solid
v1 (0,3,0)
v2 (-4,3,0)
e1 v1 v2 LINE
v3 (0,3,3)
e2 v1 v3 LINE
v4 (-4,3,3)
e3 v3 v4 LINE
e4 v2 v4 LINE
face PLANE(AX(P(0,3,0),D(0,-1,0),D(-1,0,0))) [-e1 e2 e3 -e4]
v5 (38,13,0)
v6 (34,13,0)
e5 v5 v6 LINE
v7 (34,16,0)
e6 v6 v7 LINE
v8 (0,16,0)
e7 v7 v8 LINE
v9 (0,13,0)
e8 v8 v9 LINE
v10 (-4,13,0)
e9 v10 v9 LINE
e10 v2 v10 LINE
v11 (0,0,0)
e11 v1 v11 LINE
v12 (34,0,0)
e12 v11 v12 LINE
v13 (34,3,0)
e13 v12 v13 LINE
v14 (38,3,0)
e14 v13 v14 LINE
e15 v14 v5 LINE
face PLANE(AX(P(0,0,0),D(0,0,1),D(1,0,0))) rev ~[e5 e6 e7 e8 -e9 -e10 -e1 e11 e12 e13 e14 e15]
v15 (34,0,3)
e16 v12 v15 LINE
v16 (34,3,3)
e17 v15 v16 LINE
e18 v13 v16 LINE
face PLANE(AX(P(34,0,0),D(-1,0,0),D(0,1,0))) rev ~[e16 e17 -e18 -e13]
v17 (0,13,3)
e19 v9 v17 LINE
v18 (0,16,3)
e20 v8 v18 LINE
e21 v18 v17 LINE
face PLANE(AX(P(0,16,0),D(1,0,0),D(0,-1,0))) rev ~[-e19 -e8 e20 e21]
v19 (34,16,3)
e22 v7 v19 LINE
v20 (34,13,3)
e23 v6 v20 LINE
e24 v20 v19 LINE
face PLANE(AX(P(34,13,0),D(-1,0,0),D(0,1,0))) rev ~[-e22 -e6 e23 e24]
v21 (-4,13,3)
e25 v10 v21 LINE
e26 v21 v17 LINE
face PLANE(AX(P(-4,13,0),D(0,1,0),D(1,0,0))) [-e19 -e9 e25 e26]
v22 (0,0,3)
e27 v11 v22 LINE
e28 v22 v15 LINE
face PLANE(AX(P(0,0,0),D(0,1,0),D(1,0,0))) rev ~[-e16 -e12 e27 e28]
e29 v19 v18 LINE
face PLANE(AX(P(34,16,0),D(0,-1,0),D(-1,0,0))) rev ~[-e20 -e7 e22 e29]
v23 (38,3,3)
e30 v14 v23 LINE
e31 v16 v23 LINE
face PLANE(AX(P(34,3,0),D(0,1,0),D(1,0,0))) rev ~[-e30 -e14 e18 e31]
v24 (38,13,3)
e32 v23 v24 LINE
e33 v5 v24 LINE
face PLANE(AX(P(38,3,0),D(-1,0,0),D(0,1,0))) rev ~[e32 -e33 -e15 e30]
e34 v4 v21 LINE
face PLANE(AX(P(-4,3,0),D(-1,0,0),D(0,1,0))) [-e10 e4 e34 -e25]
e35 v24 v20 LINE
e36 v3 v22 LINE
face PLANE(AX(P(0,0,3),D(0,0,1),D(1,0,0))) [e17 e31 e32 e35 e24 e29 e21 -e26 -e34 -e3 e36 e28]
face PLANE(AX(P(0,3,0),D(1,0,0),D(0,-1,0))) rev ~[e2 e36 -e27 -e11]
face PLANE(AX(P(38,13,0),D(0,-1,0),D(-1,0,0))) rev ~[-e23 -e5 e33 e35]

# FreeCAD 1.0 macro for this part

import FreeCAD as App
import Part
import Sketcher

V = App.Vector
Q = App.Units.Quantity

doc = App.newDocument("Part")
body = doc.addObject("PartDesign::Body", "Body")

sketch1 = body.newObject("Sketcher::SketchObject", "Sketch")
sketch1.AttachmentSupport = (doc.getObject("XY_Plane"), [""])
sketch1.MapMode = "FlatFace"
sketch1.addGeometry([
    Part.LineSegment(V(0, 3, 0), V(0, 0, 0)),
    Part.LineSegment(V(0, 0, 0), V(34, 0, 0)),
    Part.LineSegment(V(34, 0, 0), V(34, 3, 0)),
    Part.LineSegment(V(34, 3, 0), V(38, 3, 0)),
    Part.LineSegment(V(38, 3, 0), V(38, 13, 0)),
    Part.LineSegment(V(38, 13, 0), V(34, 13, 0)),
    Part.LineSegment(V(34, 13, 0), V(34, 16, 0)),
    Part.LineSegment(V(34, 16, 0), V(0, 16, 0)),
    Part.LineSegment(V(0, 16, 0), V(0, 13, 0)),
    Part.LineSegment(V(0, 13, 0), V(-4, 13, 0)),
    Part.LineSegment(V(-4, 13, 0), V(-4, 3, 0)),
    Part.LineSegment(V(-4, 3, 0), V(0, 3, 0)),
], False)
sketch1.addConstraint([
    Sketcher.Constraint("Coincident", 0, 2, 1, 1),
    Sketcher.Constraint("Coincident", 1, 2, 2, 1),
    Sketcher.Constraint("Coincident", 2, 2, 3, 1),
    Sketcher.Constraint("Coincident", 3, 2, 4, 1),
    Sketcher.Constraint("Coincident", 4, 2, 5, 1),
    Sketcher.Constraint("Coincident", 5, 2, 6, 1),
    Sketcher.Constraint("Coincident", 6, 2, 7, 1),
    Sketcher.Constraint("Coincident", 7, 2, 8, 1),
    Sketcher.Constraint("Coincident", 8, 2, 9, 1),
    Sketcher.Constraint("Coincident", 9, 2, 10, 1),
    Sketcher.Constraint("Coincident", 10, 2, 11, 1),
    Sketcher.Constraint("Coincident", 11, 2, 0, 1),
    Sketcher.Constraint("Vertical", 0),
    Sketcher.Constraint("Horizontal", 1),
    Sketcher.Constraint("Vertical", 2),
    Sketcher.Constraint("Horizontal", 3),
    Sketcher.Constraint("Vertical", 4),
    Sketcher.Constraint("Horizontal", 5),
    Sketcher.Constraint("Vertical", 6),
    Sketcher.Constraint("Horizontal", 7),
    Sketcher.Constraint("Vertical", 8),
    Sketcher.Constraint("Horizontal", 9),
    Sketcher.Constraint("Vertical", 10),
    Sketcher.Constraint("Horizontal", 11),
    Sketcher.Constraint("Coincident", 0, 2, -1, 1),
    Sketcher.Constraint("PointOnObject", 7, 2, -2),
    Sketcher.Constraint("Horizontal", 5, 2, 8, 2),
    Sketcher.Constraint("Horizontal", 3, 2, 10, 2),
    Sketcher.Constraint("Vertical", 2, 2, 5, 2),
    Sketcher.Constraint("Equal", 5, 9),
    Sketcher.Constraint("Equal", 2, 6),
    Sketcher.Constraint("DistanceX", 1, 1, 1, 2, Q("34 mm")),
    Sketcher.Constraint("DistanceX", 3, 1, 3, 2, Q("4 mm")),
    Sketcher.Constraint("DistanceY", 4, 1, 4, 2, Q("10 mm")),
    Sketcher.Constraint("DistanceY", -1, 1, 6, 2, Q("16 mm")),
])
pad1 = body.newObject("PartDesign::Pad", "Pad")
pad1.Profile = sketch1
pad1.Length = 3

doc.recompute()
